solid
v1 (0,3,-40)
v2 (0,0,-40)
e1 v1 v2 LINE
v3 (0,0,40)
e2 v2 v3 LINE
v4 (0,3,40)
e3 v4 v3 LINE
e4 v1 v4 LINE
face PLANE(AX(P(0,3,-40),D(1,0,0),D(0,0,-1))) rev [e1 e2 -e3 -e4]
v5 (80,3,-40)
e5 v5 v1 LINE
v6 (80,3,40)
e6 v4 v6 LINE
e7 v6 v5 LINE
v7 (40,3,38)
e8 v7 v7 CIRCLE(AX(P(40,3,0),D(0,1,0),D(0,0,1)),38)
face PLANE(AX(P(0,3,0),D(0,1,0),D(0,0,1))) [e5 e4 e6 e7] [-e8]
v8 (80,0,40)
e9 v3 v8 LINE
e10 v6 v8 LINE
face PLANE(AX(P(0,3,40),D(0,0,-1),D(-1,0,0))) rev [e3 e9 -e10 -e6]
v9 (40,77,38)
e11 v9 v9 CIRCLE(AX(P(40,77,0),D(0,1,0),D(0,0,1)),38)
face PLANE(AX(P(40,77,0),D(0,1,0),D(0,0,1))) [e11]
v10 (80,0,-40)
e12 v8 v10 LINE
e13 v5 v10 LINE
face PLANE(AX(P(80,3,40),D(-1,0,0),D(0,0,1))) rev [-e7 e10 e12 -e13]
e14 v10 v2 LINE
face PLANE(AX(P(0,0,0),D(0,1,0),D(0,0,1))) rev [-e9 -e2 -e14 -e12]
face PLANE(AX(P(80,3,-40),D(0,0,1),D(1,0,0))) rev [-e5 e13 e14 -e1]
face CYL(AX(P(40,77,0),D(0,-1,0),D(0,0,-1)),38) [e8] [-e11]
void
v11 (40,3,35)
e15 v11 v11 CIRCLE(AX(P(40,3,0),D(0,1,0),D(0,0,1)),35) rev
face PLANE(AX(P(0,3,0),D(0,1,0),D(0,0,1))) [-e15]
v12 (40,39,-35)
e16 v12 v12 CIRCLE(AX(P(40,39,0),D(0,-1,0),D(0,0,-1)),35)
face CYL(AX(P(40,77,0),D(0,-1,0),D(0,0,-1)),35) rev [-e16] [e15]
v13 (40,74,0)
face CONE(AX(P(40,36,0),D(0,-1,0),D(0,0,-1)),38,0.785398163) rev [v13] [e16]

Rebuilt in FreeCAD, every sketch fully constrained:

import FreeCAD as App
import Part
import Sketcher

V = App.Vector

doc = App.newDocument("Part")
body = doc.addObject("PartDesign::Body", "Body")

sketch1 = doc.addObject("Sketcher::SketchObject", "Sketch")
body.addObject(sketch1)
sketch1.AttachmentSupport = (doc.XZ_Plane, [""])
sketch1.MapMode = "FlatFace"
sketch1.addGeometry([
    Part.LineSegment(V(0, -40, 0), V(0, 40, 0)),
    Part.LineSegment(V(0, 40, 0), V(80, 40, 0)),
    Part.LineSegment(V(80, 40, 0), V(80, -40, 0)),
    Part.LineSegment(V(80, -40, 0), V(0, -40, 0)),
], False)
sketch1.addConstraint([
    Sketcher.Constraint("Coincident", 0, 2, 1, 1),
    Sketcher.Constraint("Coincident", 1, 2, 2, 1),
    Sketcher.Constraint("Coincident", 2, 2, 3, 1),
    Sketcher.Constraint("Coincident", 3, 2, 0, 1),
    Sketcher.Constraint("Vertical", 0),
    Sketcher.Constraint("Horizontal", 1),
    Sketcher.Constraint("Vertical", 2),
    Sketcher.Constraint("Horizontal", 3),
    Sketcher.Constraint("Symmetric", 0, 2, 3, 2, -1, 1),
    Sketcher.Constraint("Equal", 3, 0),
    Sketcher.Constraint("DistanceX", 1, 1, 1, 2, 80.0),
])
pad1 = doc.addObject("PartDesign::Pad", "Pad")
body.addObject(pad1)
pad1.Profile = sketch1
pad1.Length = 3
pad1.Reversed = True

sketch2 = doc.addObject("Sketcher::SketchObject", "Sketch001")
body.addObject(sketch2)
sketch2.AttachmentSupport = (doc.XZ_Plane, [""])
sketch2.MapMode = "FlatFace"
sketch2.AttachmentOffset = App.Placement(V(0, 0, -3), App.Rotation())
sketch2.addGeometry([
    Part.Circle(V(40, 0, 0), V(0, 0, 1), 38),
    Part.Circle(V(40, 0, 0), V(0, 0, 1), 35),
], False)
sketch2.addConstraint([
    Sketcher.Constraint("Coincident", 1, 3, 0, 3),
    Sketcher.Constraint("PointOnObject", 0, 3, -1),
    Sketcher.Constraint("Diameter", 0, 76.0),
    Sketcher.Constraint("Diameter", 1, 70.0),
    Sketcher.Constraint("DistanceX", -1, 1, 0, 3, 40.0),
])
pad2 = doc.addObject("PartDesign::Pad", "Pad001")
body.addObject(pad2)
pad2.Profile = sketch2
pad2.Length = 74
pad2.Reversed = True

sketch3 = doc.addObject("Sketcher::SketchObject", "Sketch002")
body.addObject(sketch3)
sketch3.AttachmentSupport = (doc.XY_Plane, [""])
sketch3.MapMode = "FlatFace"
sketch3.addGeometry([
    Part.LineSegment(V(40, 77, 0), V(2, 77, 0)),
    Part.LineSegment(V(2, 77, 0), V(2, 36, 0)),
    Part.LineSegment(V(2, 36, 0), V(40, 74, 0)),
    Part.LineSegment(V(40, 74, 0), V(40, 77, 0)),
], False)
sketch3.addGeometry(Part.LineSegment(V(40, 77, 0), V(40, 36, 0)), True)
sketch3.addConstraint([
    Sketcher.Constraint("Coincident", 0, 2, 1, 1),
    Sketcher.Constraint("Coincident", 1, 2, 2, 1),
    Sketcher.Constraint("Coincident", 2, 2, 3, 1),
    Sketcher.Constraint("Coincident", 3, 2, 0, 1),
    Sketcher.Constraint("Horizontal", 0),
    Sketcher.Constraint("Vertical", 1),
    Sketcher.Constraint("Vertical", 3),
    Sketcher.Constraint("Vertical", 4),
    Sketcher.Constraint("Coincident", 4, 1, 3, 2),
    Sketcher.Constraint("Horizontal", 1, 2, 4, 2),
    Sketcher.Constraint("DistanceX", 0, 2, 0, 1, 38.0),
    Sketcher.Constraint("DistanceY", 1, 2, 1, 1, 41.0),
    Sketcher.Constraint("DistanceY", 3, 1, 3, 2, 3.0),
    Sketcher.Constraint("DistanceX", -1, 1, 0, 2, 2.0),
    Sketcher.Constraint("DistanceY", -1, 1, 0, 2, 77.0),
])
revolution = doc.addObject("PartDesign::Revolution", "Revolution")
body.addObject(revolution)
revolution.Profile = sketch3
revolution.ReferenceAxis = (sketch3, ["Axis0"])
revolution.Angle = 360

doc.recompute()
